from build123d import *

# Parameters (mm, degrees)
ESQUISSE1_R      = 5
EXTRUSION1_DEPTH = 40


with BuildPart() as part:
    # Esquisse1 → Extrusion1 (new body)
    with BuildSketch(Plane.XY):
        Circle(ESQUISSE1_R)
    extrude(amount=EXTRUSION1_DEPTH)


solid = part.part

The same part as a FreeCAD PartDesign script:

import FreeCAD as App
import Part
import Sketcher

V = App.Vector
Q = App.Units.Quantity

doc = App.newDocument("Part")
body = doc.addObject("PartDesign::Body", "Body")

sketch1 = body.newObject("Sketcher::SketchObject", "Sketch")
sketch1.AttachmentSupport = (doc.getObject("XY_Plane"), [""])
sketch1.MapMode = "FlatFace"
sketch1.addGeometry(Part.Circle(V(0, 0, 0), V(0, 0, 1), 5), False)
sketch1.addConstraint([
    Sketcher.Constraint("Coincident", 0, 3, -1, 1),
    Sketcher.Constraint("Diameter", 0, Q("10 mm")),
])
pad1 = body.newObject("PartDesign::Pad", "Pad")
pad1.Profile = sketch1
pad1.Length = 40

doc.recompute()
